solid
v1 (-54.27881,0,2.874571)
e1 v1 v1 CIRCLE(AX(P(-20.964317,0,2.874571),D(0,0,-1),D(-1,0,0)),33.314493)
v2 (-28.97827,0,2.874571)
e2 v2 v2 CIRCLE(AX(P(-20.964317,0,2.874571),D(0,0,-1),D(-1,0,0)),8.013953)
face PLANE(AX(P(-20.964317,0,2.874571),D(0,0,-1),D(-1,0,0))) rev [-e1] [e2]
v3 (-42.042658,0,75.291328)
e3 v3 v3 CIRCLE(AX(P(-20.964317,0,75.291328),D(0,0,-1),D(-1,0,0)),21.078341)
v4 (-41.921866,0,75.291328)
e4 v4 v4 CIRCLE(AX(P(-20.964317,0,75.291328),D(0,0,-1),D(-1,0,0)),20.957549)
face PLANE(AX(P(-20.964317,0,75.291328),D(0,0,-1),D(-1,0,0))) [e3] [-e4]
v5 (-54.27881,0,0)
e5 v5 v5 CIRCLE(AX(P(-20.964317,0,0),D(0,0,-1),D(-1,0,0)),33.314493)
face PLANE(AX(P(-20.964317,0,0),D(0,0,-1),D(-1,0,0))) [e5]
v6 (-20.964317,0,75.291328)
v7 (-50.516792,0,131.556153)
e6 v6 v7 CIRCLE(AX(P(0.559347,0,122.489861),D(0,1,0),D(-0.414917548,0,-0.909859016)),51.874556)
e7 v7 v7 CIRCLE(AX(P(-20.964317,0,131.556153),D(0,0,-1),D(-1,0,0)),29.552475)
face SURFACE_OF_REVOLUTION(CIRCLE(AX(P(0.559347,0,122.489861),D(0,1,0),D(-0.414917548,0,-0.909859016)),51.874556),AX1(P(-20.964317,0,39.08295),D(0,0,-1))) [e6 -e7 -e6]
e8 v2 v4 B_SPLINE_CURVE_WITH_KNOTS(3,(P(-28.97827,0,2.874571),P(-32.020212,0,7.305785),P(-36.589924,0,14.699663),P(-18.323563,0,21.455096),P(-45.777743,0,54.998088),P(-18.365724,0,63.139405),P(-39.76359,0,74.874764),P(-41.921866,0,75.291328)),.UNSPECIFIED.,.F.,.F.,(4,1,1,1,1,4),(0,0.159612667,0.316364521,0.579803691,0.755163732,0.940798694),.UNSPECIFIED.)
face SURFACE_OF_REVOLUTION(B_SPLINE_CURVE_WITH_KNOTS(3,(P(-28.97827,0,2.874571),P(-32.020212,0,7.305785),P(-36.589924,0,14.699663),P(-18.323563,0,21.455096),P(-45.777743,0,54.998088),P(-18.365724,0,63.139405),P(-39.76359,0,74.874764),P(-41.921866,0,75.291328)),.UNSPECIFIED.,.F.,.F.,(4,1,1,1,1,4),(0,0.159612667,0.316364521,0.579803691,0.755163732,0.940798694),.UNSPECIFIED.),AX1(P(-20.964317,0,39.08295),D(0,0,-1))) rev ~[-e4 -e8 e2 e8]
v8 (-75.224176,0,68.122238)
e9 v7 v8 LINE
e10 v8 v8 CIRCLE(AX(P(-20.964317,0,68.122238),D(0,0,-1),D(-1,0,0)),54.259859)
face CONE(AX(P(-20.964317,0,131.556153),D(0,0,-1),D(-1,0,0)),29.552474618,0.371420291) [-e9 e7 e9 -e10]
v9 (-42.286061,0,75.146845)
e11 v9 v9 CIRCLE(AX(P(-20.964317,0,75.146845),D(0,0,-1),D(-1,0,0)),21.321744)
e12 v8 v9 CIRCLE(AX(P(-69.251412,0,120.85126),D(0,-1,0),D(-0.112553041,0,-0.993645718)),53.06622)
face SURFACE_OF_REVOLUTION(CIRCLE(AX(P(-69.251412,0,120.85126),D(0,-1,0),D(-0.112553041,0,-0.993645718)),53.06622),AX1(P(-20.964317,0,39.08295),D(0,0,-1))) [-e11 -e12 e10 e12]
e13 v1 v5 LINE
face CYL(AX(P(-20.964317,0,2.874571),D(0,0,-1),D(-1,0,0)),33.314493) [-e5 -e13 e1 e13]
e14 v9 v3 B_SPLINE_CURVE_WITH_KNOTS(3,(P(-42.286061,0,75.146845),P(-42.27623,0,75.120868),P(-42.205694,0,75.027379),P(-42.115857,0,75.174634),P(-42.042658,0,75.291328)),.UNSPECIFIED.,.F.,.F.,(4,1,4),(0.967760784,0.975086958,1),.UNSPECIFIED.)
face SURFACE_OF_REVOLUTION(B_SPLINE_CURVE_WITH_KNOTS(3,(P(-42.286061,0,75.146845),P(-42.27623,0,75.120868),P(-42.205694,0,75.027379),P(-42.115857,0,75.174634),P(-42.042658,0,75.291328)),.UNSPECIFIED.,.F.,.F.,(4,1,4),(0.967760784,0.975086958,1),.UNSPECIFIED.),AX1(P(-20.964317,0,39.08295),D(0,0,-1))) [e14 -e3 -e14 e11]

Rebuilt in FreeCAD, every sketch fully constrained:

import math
import FreeCAD as App
import Part
import Sketcher

V = App.Vector
Q = App.Units.Quantity

doc = App.newDocument("Part")
body = doc.addObject("PartDesign::Body", "Body")

sketch1 = body.newObject("Sketcher::SketchObject", "Sketch")
sketch1.AttachmentSupport = (doc.getObject("XZ_Plane"), [""])
sketch1.MapMode = "FlatFace"
sketch1.addGeometry([
    Part.LineSegment(V(-54.27881, 0, 0), V(-20.964317, 0, 0)),
    Part.LineSegment(V(-20.964317, 0, 0), V(-20.964317, 75.291328, 0)),
    Part.ArcOfCircle(Part.Circle(V(0.559347, 122.489861, 0), V(0, 0, 1), 51.874556), math.radians(169.934528), math.radians(245.485876)),
    Part.LineSegment(V(-50.516792, 131.556153, 0), V(-75.224176, 68.122238, 0)),
    Part.ArcOfCircle(Part.Circle(V(-69.251412, 120.85126, 0), V(0, 0, 1), 53.06622), math.radians(-96.462508), math.radians(-59.459632)),
    Part.BSplineCurve([V(-42.286061, 75.146845, 0), V(-42.27623, 75.120868, 0), V(-42.205694, 75.027379, 0), V(-42.115857, 75.174634, 0), V(-42.042658, 75.291328, 0)], [4, 1, 4], [0.967760784, 0.975086958, 1], False, 3, [1, 1, 1, 1, 1], False),
    Part.LineSegment(V(-42.042658, 75.291328, 0), V(-41.921866, 75.291328, 0)),
    Part.BSplineCurve([V(-28.97827, 2.874571, 0), V(-32.020212, 7.305785, 0), V(-36.589924, 14.699663, 0), V(-18.323563, 21.455096, 0), V(-45.777743, 54.998088, 0), V(-18.365724, 63.139405, 0), V(-39.76359, 74.874764, 0), V(-41.921866, 75.291328, 0)], [4, 1, 1, 1, 1, 4], [0, 0.159612667, 0.316364521, 0.579803691, 0.755163732, 0.940798694], False, 3, [1, 1, 1, 1, 1, 1, 1, 1], False),
    Part.LineSegment(V(-28.97827, 2.874571, 0), V(-54.27881, 2.874571, 0)),
    Part.LineSegment(V(-54.27881, 2.874571, 0), V(-54.27881, 0, 0)),
], False)
sketch1.addGeometry(Part.LineSegment(V(-20.964317, 131.556153, 0), V(-20.964317, 0, 0)), True)
sketch1.addConstraint([
    Sketcher.Constraint("Block", 5),
    Sketcher.Constraint("Block", 7),
    Sketcher.Constraint("Coincident", 0, 2, 1, 1),
    Sketcher.Constraint("Coincident", 1, 2, 2, 2),
    Sketcher.Constraint("Coincident", 2, 1, 3, 1),
    Sketcher.Constraint("Coincident", 3, 2, 4, 1),
    Sketcher.Constraint("Coincident", 4, 2, 5, 1),
    Sketcher.Constraint("Coincident", 5, 2, 6, 1),
    Sketcher.Constraint("Coincident", 6, 2, 7, 2),
    Sketcher.Constraint("Coincident", 7, 1, 8, 1),
    Sketcher.Constraint("Coincident", 8, 2, 9, 1),
    Sketcher.Constraint("Coincident", 9, 2, 0, 1),
    Sketcher.Constraint("Horizontal", 0),
    Sketcher.Constraint("Vertical", 1),
    Sketcher.Constraint("Horizontal", 8),
    Sketcher.Constraint("Vertical", 9),
    Sketcher.Constraint("Vertical", 10),
    Sketcher.Constraint("Coincident", 10, 2, 0, 2),
    Sketcher.Constraint("PointOnObject", 0, 2, -1),
    Sketcher.Constraint("Horizontal", 1, 2, 6, 2),
    Sketcher.Constraint("Horizontal", 2, 1, 10, 1),
    Sketcher.Constraint("Radius", 4, Q("53.06622 mm")),
    Sketcher.Constraint("Radius", 2, Q("51.874556 mm")),
    Sketcher.Constraint("DistanceX", 8, 2, 8, 1, Q("25.30054 mm")),
    Sketcher.Constraint("DistanceY", 4, 3, 2, 3, Q("1.638601 mm")),
    Sketcher.Constraint("DistanceX", 0, 1, 0, 2, Q("33.314493 mm")),
    Sketcher.Constraint("DistanceY", 10, 2, 10, 1, Q("131.556153 mm")),
    Sketcher.Constraint("DistanceY", -1, 1, 2, 3, Q("122.489861 mm")),
    Sketcher.Constraint("DistanceY", 3, 2, 4, 3, Q("52.729022 mm")),
])
revolution = body.newObject("PartDesign::Revolution", "Revolution")
revolution.Profile = sketch1
revolution.ReferenceAxis = (sketch1, ["Axis0"])
revolution.Angle = 360

doc.recompute()
